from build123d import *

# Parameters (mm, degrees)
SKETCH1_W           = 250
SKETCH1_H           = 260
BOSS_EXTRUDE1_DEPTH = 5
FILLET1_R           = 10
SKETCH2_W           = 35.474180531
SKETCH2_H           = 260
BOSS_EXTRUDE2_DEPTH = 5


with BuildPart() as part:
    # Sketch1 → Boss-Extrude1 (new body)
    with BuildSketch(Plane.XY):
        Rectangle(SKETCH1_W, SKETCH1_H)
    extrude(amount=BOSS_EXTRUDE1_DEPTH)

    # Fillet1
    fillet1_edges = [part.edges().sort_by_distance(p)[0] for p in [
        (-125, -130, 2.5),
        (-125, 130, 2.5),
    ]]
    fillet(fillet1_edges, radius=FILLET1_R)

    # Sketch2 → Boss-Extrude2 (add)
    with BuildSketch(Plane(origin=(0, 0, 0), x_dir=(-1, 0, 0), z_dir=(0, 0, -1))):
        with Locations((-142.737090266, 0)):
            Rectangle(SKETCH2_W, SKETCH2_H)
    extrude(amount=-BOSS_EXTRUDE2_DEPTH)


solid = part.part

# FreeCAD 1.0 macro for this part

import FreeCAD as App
import Part
import Sketcher

V = App.Vector
Q = App.Units.Quantity


def edges_at(feature, points):
    """Names of the edges that pass closest to the given points."""
    edges = feature.Shape.Edges
    near = lambda p: min(range(len(edges)), key=lambda i: edges[i].distToShape(Part.Vertex(*p))[0])
    return sorted({f"Edge{near(p) + 1}" for p in points})


def add_polygon(sketch, points):
    """Adds a closed chain of lines whose ends are joined by coincident constraints."""
    first, n = sketch.GeometryCount, len(points)
    for a, b in zip(points, points[1:] + points[:1]):
        sketch.addGeometry(Part.LineSegment(App.Vector(*a, 0), App.Vector(*b, 0)), False)
    for i in range(n):
        sketch.addConstraint(Sketcher.Constraint("Coincident", first + i, 2, first + (i + 1) % n, 1))

doc = App.newDocument("Part")
body = doc.addObject("PartDesign::Body", "Body")

# Sketch on XY plane
sketch1 = body.newObject("Sketcher::SketchObject", "Sketch")
sketch1.AttachmentSupport = (doc.getObject("XY_Plane"), [""])
sketch1.MapMode = "FlatFace"
add_polygon(sketch1, [(-125, 130), (-125, -130), (125, -130), (125, 130)])  # lines 0-3
sketch1.addConstraint(Sketcher.Constraint("Vertical", 0))
sketch1.addConstraint(Sketcher.Constraint("Horizontal", 1))
sketch1.addConstraint(Sketcher.Constraint("Vertical", 2))
sketch1.addConstraint(Sketcher.Constraint("Horizontal", 3))
sketch1.addConstraint(Sketcher.Constraint("Symmetric", 0, 2, 2, 2, -1, 1))
sketch1.addConstraint(Sketcher.Constraint("DistanceX", 1, 1, 1, 2, Q("250 mm")))
sketch1.addConstraint(Sketcher.Constraint("DistanceY", 0, 2, 0, 1, Q("260 mm")))
pad1 = body.newObject("PartDesign::Pad", "Pad")
pad1.Profile = sketch1
pad1.Length = 5
doc.recompute()

fillet = body.newObject("PartDesign::Fillet", "Fillet")
fillet.Base = (pad1, edges_at(pad1, [(-125, -130, 2.5), (-125, 130, 2.5)]))
fillet.Radius = 10

# Sketch on XY plane
sketch2 = body.newObject("Sketcher::SketchObject", "Sketch001")
sketch2.AttachmentSupport = (doc.getObject("XY_Plane"), [""])
sketch2.MapMode = "FlatFace"
add_polygon(sketch2, [(160, 130), (160, -130), (125, -130), (125, 130)])  # lines 0-3
sketch2.addConstraint(Sketcher.Constraint("Vertical", 0))
sketch2.addConstraint(Sketcher.Constraint("Horizontal", 1))
sketch2.addConstraint(Sketcher.Constraint("Vertical", 2))
sketch2.addConstraint(Sketcher.Constraint("Horizontal", 3))
sketch2.addConstraint(Sketcher.Constraint("DistanceY", 0, 2, 0, 1, Q("260 mm")))
sketch2.addConstraint(Sketcher.Constraint("DistanceY", 0, 2, -1, 1, Q("130 mm")))
sketch2.addConstraint(Sketcher.Constraint("DistanceX", -1, 1, 1, 2, Q("125 mm")))
sketch2.addConstraint(Sketcher.Constraint("DistanceX", 1, 2, 1, 1, Q("35.474181 mm")))
pad2 = body.newObject("PartDesign::Pad", "Pad001")
pad2.Profile = sketch2
pad2.Length = 5

doc.recompute()
